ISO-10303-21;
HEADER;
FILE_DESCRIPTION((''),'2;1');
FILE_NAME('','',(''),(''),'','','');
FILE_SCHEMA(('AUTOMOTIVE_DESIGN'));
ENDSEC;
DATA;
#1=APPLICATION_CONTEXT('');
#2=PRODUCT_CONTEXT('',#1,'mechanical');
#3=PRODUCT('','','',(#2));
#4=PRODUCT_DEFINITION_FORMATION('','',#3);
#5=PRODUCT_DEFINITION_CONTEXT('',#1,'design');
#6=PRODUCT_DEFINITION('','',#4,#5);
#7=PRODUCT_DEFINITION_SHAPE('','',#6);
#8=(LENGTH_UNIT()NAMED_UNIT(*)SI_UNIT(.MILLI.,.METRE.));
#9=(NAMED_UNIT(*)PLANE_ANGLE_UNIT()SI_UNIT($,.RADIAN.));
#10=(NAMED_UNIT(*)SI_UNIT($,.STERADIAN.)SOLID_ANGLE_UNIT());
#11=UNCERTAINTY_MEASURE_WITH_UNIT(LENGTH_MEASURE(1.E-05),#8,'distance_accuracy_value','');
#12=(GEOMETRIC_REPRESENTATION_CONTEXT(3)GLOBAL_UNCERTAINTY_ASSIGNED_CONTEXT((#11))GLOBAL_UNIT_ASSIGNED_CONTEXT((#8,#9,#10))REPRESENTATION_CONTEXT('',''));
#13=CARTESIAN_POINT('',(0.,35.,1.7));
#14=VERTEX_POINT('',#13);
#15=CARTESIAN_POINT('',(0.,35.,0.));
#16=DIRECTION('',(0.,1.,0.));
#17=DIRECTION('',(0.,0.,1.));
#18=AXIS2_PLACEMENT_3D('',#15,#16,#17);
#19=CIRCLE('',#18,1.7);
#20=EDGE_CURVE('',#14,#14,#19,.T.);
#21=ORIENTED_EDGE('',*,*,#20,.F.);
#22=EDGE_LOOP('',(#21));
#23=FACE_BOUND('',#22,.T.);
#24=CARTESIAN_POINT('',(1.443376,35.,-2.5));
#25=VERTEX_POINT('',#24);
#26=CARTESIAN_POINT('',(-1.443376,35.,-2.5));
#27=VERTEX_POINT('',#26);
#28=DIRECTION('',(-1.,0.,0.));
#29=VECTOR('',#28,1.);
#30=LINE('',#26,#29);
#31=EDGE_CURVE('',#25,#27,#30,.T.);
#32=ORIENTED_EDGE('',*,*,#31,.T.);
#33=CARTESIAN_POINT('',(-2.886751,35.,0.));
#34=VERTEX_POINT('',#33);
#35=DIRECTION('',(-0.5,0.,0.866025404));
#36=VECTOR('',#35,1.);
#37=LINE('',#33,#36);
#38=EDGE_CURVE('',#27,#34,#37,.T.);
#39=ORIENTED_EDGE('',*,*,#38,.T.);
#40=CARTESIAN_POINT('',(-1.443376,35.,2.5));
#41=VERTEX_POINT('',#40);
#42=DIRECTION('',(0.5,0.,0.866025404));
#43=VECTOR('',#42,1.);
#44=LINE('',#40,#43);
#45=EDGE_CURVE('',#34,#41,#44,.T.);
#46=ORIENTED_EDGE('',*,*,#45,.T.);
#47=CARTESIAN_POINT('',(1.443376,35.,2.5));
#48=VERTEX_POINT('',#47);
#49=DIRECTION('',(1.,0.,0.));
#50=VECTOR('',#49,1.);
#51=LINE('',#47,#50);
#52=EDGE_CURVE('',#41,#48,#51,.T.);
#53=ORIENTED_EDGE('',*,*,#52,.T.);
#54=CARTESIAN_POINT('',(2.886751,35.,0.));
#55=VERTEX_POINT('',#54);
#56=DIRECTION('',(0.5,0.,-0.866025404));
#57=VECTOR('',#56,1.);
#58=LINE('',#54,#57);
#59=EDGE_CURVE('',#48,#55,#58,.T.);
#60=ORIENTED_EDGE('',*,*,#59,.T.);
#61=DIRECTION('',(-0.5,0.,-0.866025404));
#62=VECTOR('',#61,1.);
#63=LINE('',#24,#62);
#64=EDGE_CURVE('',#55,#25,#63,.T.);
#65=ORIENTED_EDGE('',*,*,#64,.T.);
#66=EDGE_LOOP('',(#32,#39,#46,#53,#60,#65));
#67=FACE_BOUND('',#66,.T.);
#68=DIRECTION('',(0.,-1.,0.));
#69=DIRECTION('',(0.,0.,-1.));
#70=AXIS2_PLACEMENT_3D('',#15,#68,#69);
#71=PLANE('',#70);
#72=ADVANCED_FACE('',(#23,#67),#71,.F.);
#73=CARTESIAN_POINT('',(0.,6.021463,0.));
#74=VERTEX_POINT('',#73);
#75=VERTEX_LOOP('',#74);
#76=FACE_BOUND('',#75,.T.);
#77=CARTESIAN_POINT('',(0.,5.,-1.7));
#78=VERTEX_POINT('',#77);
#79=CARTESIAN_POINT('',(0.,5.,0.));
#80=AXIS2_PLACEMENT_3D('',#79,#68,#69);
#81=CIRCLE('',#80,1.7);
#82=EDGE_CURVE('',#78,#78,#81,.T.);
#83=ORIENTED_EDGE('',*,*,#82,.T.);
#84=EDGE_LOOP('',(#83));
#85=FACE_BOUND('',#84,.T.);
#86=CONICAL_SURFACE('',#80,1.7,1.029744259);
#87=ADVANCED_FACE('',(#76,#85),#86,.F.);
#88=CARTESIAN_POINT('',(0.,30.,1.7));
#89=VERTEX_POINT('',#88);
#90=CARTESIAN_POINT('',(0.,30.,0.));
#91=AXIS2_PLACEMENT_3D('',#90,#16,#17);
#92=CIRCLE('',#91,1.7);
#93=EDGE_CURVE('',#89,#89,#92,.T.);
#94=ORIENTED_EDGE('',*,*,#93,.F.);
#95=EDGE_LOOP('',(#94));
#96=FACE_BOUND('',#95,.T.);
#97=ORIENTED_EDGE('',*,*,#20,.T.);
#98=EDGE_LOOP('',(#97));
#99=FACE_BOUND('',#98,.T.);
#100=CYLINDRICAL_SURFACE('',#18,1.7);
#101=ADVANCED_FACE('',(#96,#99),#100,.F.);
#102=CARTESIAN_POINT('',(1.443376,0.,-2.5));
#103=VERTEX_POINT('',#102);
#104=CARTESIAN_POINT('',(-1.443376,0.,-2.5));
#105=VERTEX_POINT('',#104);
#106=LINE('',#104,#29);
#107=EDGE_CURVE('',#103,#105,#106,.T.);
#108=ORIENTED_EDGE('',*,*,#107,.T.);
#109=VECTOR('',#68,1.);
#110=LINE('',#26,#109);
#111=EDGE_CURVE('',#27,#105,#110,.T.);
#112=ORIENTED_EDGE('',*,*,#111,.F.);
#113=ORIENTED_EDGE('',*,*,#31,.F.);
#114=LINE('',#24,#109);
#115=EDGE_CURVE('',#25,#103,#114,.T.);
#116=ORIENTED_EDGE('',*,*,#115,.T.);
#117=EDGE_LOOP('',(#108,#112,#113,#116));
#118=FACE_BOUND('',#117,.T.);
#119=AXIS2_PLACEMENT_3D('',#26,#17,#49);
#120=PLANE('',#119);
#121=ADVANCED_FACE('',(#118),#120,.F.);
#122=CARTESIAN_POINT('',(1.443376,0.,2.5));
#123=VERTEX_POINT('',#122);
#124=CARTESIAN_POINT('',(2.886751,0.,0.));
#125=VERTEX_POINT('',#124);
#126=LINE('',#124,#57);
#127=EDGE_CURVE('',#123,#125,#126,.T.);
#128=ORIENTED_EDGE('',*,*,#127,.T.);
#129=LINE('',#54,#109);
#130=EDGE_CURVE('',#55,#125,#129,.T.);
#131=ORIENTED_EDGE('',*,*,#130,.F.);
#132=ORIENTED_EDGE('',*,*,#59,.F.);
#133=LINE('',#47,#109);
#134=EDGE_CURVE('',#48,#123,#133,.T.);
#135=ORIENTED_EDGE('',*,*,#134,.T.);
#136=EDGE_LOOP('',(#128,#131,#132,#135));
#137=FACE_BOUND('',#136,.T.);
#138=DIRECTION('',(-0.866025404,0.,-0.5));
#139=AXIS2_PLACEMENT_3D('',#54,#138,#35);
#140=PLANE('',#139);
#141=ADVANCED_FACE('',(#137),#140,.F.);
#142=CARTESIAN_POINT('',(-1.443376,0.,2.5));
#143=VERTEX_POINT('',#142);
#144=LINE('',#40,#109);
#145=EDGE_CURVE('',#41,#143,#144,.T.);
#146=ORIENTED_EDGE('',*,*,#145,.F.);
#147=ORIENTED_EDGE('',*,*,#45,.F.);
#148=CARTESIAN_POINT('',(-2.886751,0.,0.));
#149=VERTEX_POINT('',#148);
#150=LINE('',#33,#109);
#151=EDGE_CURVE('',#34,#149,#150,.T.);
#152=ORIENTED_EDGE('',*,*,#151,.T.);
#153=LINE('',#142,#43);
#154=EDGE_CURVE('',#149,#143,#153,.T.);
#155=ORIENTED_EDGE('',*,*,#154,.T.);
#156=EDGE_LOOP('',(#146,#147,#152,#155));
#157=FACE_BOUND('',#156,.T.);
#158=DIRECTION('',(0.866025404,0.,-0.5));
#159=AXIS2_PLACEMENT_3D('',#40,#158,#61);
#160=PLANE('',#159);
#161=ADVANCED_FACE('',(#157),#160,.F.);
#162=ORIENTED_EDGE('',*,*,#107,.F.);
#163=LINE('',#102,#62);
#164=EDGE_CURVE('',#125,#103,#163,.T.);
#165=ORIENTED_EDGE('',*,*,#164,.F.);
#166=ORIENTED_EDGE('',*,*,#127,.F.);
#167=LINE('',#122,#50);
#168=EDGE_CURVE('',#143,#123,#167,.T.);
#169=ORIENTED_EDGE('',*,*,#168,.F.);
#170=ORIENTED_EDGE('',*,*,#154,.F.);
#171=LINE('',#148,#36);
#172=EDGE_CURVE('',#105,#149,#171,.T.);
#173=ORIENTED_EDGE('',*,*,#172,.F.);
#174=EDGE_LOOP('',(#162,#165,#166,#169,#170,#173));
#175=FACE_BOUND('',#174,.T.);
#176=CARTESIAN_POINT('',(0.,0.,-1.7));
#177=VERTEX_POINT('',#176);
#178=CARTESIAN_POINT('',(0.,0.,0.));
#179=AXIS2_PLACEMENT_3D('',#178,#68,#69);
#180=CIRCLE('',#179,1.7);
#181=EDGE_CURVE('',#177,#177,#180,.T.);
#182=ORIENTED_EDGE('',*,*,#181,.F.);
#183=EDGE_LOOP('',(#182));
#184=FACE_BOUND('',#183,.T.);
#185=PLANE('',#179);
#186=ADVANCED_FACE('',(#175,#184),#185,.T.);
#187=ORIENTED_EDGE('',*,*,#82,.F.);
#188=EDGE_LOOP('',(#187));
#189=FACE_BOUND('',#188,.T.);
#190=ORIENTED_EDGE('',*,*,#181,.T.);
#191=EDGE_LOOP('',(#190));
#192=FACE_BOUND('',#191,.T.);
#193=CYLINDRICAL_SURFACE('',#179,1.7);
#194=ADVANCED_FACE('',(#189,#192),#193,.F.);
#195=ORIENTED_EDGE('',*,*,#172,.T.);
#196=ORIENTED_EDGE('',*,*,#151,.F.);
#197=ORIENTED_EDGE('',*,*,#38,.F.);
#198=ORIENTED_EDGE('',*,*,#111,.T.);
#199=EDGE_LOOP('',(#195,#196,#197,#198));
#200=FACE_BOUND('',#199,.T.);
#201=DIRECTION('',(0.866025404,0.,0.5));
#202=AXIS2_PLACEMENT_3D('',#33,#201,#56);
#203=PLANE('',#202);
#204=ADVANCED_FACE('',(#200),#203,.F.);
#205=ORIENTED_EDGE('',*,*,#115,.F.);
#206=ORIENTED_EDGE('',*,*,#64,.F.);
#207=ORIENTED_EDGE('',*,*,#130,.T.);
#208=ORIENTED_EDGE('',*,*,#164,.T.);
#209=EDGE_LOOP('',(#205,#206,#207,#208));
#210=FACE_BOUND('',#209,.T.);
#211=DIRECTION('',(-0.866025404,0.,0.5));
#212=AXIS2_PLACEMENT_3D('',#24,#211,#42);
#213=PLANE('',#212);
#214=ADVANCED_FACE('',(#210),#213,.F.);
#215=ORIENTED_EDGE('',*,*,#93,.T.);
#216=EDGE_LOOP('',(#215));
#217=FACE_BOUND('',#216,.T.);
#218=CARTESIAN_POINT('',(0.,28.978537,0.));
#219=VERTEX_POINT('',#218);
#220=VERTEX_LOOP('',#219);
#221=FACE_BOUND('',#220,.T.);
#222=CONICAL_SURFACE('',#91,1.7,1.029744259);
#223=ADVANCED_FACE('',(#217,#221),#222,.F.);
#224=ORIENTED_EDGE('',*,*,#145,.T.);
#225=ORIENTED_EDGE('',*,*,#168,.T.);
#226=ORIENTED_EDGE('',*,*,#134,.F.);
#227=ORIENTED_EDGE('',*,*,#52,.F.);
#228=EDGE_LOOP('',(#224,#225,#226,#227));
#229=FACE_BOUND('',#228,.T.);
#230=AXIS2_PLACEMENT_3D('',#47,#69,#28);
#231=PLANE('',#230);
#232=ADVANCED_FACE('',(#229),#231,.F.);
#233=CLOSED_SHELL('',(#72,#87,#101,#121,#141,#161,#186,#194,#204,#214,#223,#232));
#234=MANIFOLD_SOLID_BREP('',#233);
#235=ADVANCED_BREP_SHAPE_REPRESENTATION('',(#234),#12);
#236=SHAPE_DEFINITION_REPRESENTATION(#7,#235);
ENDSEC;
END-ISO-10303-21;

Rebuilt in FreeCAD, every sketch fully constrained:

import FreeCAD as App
import Part
import Sketcher

V = App.Vector
Q = App.Units.Quantity

doc = App.newDocument("Part")
body = doc.addObject("PartDesign::Body", "Body")

sketch1 = doc.addObject("Sketcher::SketchObject", "Sketch")
body.addObject(sketch1)
sketch1.AttachmentSupport = (doc.XZ_Plane, [""])
sketch1.MapMode = "FlatFace"
sketch1.addGeometry([
    Part.LineSegment(V(1.4, -2.5, 0), V(-1.4, -2.5, 0)),
    Part.LineSegment(V(-1.4, -2.5, 0), V(-2.9, 0, 0)),
    Part.LineSegment(V(-2.9, 0, 0), V(-1.4, 2.5, 0)),
    Part.LineSegment(V(-1.4, 2.5, 0), V(1.4, 2.5, 0)),
    Part.LineSegment(V(1.4, 2.5, 0), V(2.9, 0, 0)),
    Part.LineSegment(V(2.9, 0, 0), V(1.4, -2.5, 0)),
], False)
sketch1.addConstraint([
    Sketcher.Constraint("Coincident", 0, 2, 1, 1),
    Sketcher.Constraint("Coincident", 1, 2, 2, 1),
    Sketcher.Constraint("Coincident", 2, 2, 3, 1),
    Sketcher.Constraint("Coincident", 3, 2, 4, 1),
    Sketcher.Constraint("Coincident", 4, 2, 5, 1),
    Sketcher.Constraint("Coincident", 5, 2, 0, 1),
    Sketcher.Constraint("Horizontal", 0),
    Sketcher.Constraint("Horizontal", 3),
    Sketcher.Constraint("Symmetric", 0, 2, 3, 2, -1, 1),
    Sketcher.Constraint("Symmetric", 1, 2, 4, 2, -1, 1),
    Sketcher.Constraint("PointOnObject", 1, 2, -1),
    Sketcher.Constraint("Parallel", 2, 5),
    Sketcher.Constraint("Vertical", 0, 2, 2, 2),
    Sketcher.Constraint("Angle", 1, Q("120 deg")),
    Sketcher.Constraint("DistanceY", 0, 2, 2, 2, Q("5 mm")),
    Sketcher.Constraint("DistanceX", 0, 2, 0, 1, Q("2.886751 mm")),
])
pad1 = doc.addObject("PartDesign::Pad", "Pad")
body.addObject(pad1)
pad1.Profile = sketch1
pad1.Length = 35
pad1.Reversed = True

sketch2 = doc.addObject("Sketcher::SketchObject", "Sketch001")
body.addObject(sketch2)
sketch2.AttachmentSupport = (doc.XZ_Plane, [""])
sketch2.MapMode = "FlatFace"
sketch2.AttachmentOffset = App.Placement(V(0, 0, -35), App.Rotation())
sketch2.addGeometry(Part.Circle(V(0, 0, 0), V(0, 0, 1), 1.7), False)
sketch2.addConstraint([
    Sketcher.Constraint("Coincident", 0, 3, -1, 1),
    Sketcher.Constraint("Diameter", 0, Q("3.4 mm")),
])
doc.recompute()
hole = doc.addObject("PartDesign::Hole", "Hole")
body.addObject(hole)
hole.Profile = sketch2
hole.ThreadType = "None"
hole.Diameter = 3.4
hole.DepthType = "Dimension"
hole.Depth = 5
hole.DrillPoint = "Angled"
hole.DrillPointAngle = 118
hole.Reversed = True

sketch3 = doc.addObject("Sketcher::SketchObject", "Sketch002")
body.addObject(sketch3)
sketch3.AttachmentSupport = (doc.XZ_Plane, [""])
sketch3.MapMode = "FlatFace"
sketch3.addGeometry(Part.Circle(V(0, 0, 0), V(0, 0, 1), 1.7), False)
sketch3.addConstraint([
    Sketcher.Constraint("Coincident", 0, 3, -1, 1),
    Sketcher.Constraint("Diameter", 0, Q("3.4 mm")),
])
doc.recompute()
hole2 = doc.addObject("PartDesign::Hole", "Hole001")
body.addObject(hole2)
hole2.Profile = sketch3
hole2.ThreadType = "None"
hole2.Diameter = 3.4
hole2.DepthType = "Dimension"
hole2.Depth = 5
hole2.DrillPoint = "Angled"
hole2.DrillPointAngle = 118

doc.recompute()
